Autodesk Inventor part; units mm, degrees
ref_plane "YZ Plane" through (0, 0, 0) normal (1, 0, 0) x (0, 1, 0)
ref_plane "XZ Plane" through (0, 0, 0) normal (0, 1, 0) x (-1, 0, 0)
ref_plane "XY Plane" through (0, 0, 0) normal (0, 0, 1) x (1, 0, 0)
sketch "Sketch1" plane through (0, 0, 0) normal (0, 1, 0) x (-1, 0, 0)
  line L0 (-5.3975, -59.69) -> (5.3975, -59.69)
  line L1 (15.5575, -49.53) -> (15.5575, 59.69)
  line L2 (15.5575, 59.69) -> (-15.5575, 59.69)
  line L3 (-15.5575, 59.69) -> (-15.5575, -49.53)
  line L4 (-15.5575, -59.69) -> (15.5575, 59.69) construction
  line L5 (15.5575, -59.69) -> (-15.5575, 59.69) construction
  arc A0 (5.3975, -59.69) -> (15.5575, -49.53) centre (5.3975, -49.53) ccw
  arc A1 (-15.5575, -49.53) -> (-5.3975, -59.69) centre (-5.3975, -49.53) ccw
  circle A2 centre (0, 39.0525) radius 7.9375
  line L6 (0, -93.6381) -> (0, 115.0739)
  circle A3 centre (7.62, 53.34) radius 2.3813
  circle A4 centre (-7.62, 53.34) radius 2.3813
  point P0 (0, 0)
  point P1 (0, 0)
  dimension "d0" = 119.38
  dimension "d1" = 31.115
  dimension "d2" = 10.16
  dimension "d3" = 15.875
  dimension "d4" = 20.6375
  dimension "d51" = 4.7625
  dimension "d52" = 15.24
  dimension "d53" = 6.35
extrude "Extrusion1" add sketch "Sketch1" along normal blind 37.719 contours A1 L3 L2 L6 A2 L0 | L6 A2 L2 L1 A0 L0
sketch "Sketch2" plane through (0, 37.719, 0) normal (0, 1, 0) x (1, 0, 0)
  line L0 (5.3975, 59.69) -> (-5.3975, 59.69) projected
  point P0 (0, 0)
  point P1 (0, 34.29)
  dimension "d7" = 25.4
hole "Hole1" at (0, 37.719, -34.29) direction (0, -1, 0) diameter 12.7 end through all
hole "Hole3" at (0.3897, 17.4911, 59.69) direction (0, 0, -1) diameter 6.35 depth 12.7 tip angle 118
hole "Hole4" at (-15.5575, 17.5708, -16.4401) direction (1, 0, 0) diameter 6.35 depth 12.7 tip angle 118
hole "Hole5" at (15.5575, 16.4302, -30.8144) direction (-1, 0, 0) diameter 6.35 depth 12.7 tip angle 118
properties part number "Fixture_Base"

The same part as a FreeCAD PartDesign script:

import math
import FreeCAD as App
import Part
import Sketcher
from FreeCAD import Vector
Q = App.Units.Quantity

doc = App.newDocument("Part")
body = doc.addObject("PartDesign::Body", "Body")

# Sketch on XZ plane
sketch1 = body.newObject("Sketcher::SketchObject", "Sketch")
sketch1.AttachmentSupport = (doc.getObject("XZ_Plane"), [""])
sketch1.MapMode = "FlatFace"
sketch1.addGeometry([
    Part.ArcOfCircle(Part.Circle(Vector(5.3975, -49.53, 0), Vector(0, 0, 1), 10.16), math.radians(-90), math.radians(0)),  # 0
    Part.LineSegment(Vector(5.3975, -59.69, 0), Vector(-5.3975, -59.69, 0)),  # 1
    Part.ArcOfCircle(Part.Circle(Vector(-5.3975, -49.53, 0), Vector(0, 0, 1), 10.16), math.radians(180), math.radians(270)),  # 2
    Part.LineSegment(Vector(-15.5575, -49.53, 0), Vector(-15.5575, 59.69, 0)),  # 3
    Part.LineSegment(Vector(-15.5575, 59.69, 0), Vector(15.5575, 59.69, 0)),  # 4
    Part.LineSegment(Vector(15.5575, 59.69, 0), Vector(15.5575, -49.53, 0)),  # 5
    Part.Circle(Vector(0, 39.0525, 0), Vector(0, 0, 1), 7.9375),  # 6
    Part.Circle(Vector(7.62, 53.34, 0), Vector(0, 0, 1), 2.3813),  # 7
    Part.Circle(Vector(-7.62, 53.34, 0), Vector(0, 0, 1), 2.3813),  # 8
], False)
sketch1.addConstraint([
    Sketcher.Constraint("Tangent", 0, 1, 1, 1),
    Sketcher.Constraint("Tangent", 1, 2, 2, 2),
    Sketcher.Constraint("Tangent", 2, 1, 3, 1),
    Sketcher.Constraint("Coincident", 3, 2, 4, 1),
    Sketcher.Constraint("Coincident", 4, 2, 5, 1),
    Sketcher.Constraint("Tangent", 5, 2, 0, 2),
    Sketcher.Constraint("Horizontal", 1),
    Sketcher.Constraint("Vertical", 3),
    Sketcher.Constraint("Horizontal", 4),
    Sketcher.Constraint("Vertical", 5),
    Sketcher.Constraint("Equal", 0, 2),
    Sketcher.Constraint("Equal", 7, 8),
    Sketcher.Constraint("Symmetric", 7, 3, 8, 3, -2),
    Sketcher.Constraint("PointOnObject", 6, 3, -2),
    Sketcher.Constraint("Radius", 0, Q("0.4 in")),
    Sketcher.Constraint("Diameter", 6, Q("0.625 in")),
    Sketcher.Constraint("Diameter", 7, Q("0.1875 in")),
    Sketcher.Constraint("DistanceX", 8, 3, 7, 3, Q("0.6 in")),
    Sketcher.Constraint("DistanceX", 4, 1, 4, 2, Q("1.225 in")),
    Sketcher.Constraint("DistanceY", 8, 3, 3, 2, Q("0.25 in")),
    Sketcher.Constraint("DistanceY", 3, 1, 3, 2, Q("4.3 in")),
    Sketcher.Constraint("DistanceY", 6, 3, 3, 2, Q("0.8125 in")),
    Sketcher.Constraint("DistanceY", -1, 1, 7, 3, Q("2.1 in")),
    Sketcher.Constraint("DistanceX", 3, 2, 8, 3, Q("0.3125 in")),
])
pad1 = body.newObject("PartDesign::Pad", "Pad")
pad1.Profile = sketch1
pad1.Length = Q("1.485 in")
pad1.Reversed = True

# Sketch on XZ plane
sketch2 = body.newObject("Sketcher::SketchObject", "Sketch001")
sketch2.AttachmentSupport = (doc.getObject("XZ_Plane"), [""])
sketch2.MapMode = "FlatFace"
sketch2.AttachmentOffset = App.Placement(Vector(0, 0, -1.485 * 25.4), App.Rotation())
sketch2.addGeometry(Part.Circle(Vector(0, -34.29, 0), Vector(0, 0, 1), 6.35), False)
sketch2.addConstraint([
    Sketcher.Constraint("PointOnObject", 0, 3, -2),
    Sketcher.Constraint("Diameter", 0, Q("0.5 in")),
    Sketcher.Constraint("DistanceY", 0, 3, -1, 1, Q("1.35 in")),
])
doc.recompute()
hole = body.newObject("PartDesign::Hole", "Hole")
hole.Profile = sketch2
hole.ThreadType = "None"
hole.Diameter = Q("0.5 in")
hole.DepthType = "ThroughAll"
hole.Reversed = True

# Sketch on XY plane
sketch3 = body.newObject("Sketcher::SketchObject", "Sketch002")
sketch3.AttachmentSupport = (doc.getObject("XY_Plane"), [""])
sketch3.MapMode = "FlatFace"
sketch3.AttachmentOffset = App.Placement(Vector(0, 0, 2.35 * 25.4), App.Rotation())
sketch3.addGeometry(Part.Circle(Vector(0.3897, 17.4911, 0), Vector(0, 0, 1), 3.175), False)
sketch3.addConstraint([
    Sketcher.Constraint("Diameter", 0, Q("0.25 in")),
    Sketcher.Constraint("DistanceX", -1, 1, 0, 3, 0.3897),
    Sketcher.Constraint("DistanceY", -1, 1, 0, 3, 17.491),
])
doc.recompute()
hole2 = body.newObject("PartDesign::Hole", "Hole001")
hole2.Profile = sketch3
hole2.ThreadType = "None"
hole2.Diameter = Q("0.25 in")
hole2.DepthType = "Dimension"
hole2.Depth = Q("0.5 in")
hole2.DrillPoint = "Angled"
hole2.DrillPointAngle = 118

# Sketch on YZ plane
sketch4 = body.newObject("Sketcher::SketchObject", "Sketch003")
sketch4.AttachmentSupport = (doc.getObject("YZ_Plane"), [""])
sketch4.MapMode = "FlatFace"
sketch4.AttachmentOffset = App.Placement(Vector(0, 0, -0.6125 * 25.4), App.Rotation())
sketch4.addGeometry(Part.Circle(Vector(17.5708, -16.4401, 0), Vector(0, 0, 1), 3.175), False)
sketch4.addConstraint([
    Sketcher.Constraint("Diameter", 0, Q("0.25 in")),
    Sketcher.Constraint("DistanceX", -1, 1, 0, 3, 17.5708),
    Sketcher.Constraint("DistanceY", 0, 3, -1, 1, 16.44),
])
doc.recompute()
hole3 = body.newObject("PartDesign::Hole", "Hole002")
hole3.Profile = sketch4
hole3.ThreadType = "None"
hole3.Diameter = Q("0.25 in")
hole3.DepthType = "Dimension"
hole3.Depth = Q("0.5 in")
hole3.DrillPoint = "Angled"
hole3.DrillPointAngle = 118
hole3.Reversed = True

# Sketch on YZ plane
sketch5 = body.newObject("Sketcher::SketchObject", "Sketch004")
sketch5.AttachmentSupport = (doc.getObject("YZ_Plane"), [""])
sketch5.MapMode = "FlatFace"
sketch5.AttachmentOffset = App.Placement(Vector(0, 0, 0.6125 * 25.4), App.Rotation())
sketch5.addGeometry(Part.Circle(Vector(16.4302, -30.8144, 0), Vector(0, 0, 1), 3.175), False)
sketch5.addConstraint([
    Sketcher.Constraint("Diameter", 0, Q("0.25 in")),
    Sketcher.Constraint("DistanceX", -1, 1, 0, 3, 16.4302),
    Sketcher.Constraint("DistanceY", 0, 3, -1, 1, 30.8144),
])
doc.recompute()
hole4 = body.newObject("PartDesign::Hole", "Hole003")
hole4.Profile = sketch5
hole4.ThreadType = "None"
hole4.Diameter = Q("0.25 in")
hole4.DepthType = "Dimension"
hole4.Depth = Q("0.5 in")
hole4.DrillPoint = "Angled"
hole4.DrillPointAngle = 118

doc.recompute()
